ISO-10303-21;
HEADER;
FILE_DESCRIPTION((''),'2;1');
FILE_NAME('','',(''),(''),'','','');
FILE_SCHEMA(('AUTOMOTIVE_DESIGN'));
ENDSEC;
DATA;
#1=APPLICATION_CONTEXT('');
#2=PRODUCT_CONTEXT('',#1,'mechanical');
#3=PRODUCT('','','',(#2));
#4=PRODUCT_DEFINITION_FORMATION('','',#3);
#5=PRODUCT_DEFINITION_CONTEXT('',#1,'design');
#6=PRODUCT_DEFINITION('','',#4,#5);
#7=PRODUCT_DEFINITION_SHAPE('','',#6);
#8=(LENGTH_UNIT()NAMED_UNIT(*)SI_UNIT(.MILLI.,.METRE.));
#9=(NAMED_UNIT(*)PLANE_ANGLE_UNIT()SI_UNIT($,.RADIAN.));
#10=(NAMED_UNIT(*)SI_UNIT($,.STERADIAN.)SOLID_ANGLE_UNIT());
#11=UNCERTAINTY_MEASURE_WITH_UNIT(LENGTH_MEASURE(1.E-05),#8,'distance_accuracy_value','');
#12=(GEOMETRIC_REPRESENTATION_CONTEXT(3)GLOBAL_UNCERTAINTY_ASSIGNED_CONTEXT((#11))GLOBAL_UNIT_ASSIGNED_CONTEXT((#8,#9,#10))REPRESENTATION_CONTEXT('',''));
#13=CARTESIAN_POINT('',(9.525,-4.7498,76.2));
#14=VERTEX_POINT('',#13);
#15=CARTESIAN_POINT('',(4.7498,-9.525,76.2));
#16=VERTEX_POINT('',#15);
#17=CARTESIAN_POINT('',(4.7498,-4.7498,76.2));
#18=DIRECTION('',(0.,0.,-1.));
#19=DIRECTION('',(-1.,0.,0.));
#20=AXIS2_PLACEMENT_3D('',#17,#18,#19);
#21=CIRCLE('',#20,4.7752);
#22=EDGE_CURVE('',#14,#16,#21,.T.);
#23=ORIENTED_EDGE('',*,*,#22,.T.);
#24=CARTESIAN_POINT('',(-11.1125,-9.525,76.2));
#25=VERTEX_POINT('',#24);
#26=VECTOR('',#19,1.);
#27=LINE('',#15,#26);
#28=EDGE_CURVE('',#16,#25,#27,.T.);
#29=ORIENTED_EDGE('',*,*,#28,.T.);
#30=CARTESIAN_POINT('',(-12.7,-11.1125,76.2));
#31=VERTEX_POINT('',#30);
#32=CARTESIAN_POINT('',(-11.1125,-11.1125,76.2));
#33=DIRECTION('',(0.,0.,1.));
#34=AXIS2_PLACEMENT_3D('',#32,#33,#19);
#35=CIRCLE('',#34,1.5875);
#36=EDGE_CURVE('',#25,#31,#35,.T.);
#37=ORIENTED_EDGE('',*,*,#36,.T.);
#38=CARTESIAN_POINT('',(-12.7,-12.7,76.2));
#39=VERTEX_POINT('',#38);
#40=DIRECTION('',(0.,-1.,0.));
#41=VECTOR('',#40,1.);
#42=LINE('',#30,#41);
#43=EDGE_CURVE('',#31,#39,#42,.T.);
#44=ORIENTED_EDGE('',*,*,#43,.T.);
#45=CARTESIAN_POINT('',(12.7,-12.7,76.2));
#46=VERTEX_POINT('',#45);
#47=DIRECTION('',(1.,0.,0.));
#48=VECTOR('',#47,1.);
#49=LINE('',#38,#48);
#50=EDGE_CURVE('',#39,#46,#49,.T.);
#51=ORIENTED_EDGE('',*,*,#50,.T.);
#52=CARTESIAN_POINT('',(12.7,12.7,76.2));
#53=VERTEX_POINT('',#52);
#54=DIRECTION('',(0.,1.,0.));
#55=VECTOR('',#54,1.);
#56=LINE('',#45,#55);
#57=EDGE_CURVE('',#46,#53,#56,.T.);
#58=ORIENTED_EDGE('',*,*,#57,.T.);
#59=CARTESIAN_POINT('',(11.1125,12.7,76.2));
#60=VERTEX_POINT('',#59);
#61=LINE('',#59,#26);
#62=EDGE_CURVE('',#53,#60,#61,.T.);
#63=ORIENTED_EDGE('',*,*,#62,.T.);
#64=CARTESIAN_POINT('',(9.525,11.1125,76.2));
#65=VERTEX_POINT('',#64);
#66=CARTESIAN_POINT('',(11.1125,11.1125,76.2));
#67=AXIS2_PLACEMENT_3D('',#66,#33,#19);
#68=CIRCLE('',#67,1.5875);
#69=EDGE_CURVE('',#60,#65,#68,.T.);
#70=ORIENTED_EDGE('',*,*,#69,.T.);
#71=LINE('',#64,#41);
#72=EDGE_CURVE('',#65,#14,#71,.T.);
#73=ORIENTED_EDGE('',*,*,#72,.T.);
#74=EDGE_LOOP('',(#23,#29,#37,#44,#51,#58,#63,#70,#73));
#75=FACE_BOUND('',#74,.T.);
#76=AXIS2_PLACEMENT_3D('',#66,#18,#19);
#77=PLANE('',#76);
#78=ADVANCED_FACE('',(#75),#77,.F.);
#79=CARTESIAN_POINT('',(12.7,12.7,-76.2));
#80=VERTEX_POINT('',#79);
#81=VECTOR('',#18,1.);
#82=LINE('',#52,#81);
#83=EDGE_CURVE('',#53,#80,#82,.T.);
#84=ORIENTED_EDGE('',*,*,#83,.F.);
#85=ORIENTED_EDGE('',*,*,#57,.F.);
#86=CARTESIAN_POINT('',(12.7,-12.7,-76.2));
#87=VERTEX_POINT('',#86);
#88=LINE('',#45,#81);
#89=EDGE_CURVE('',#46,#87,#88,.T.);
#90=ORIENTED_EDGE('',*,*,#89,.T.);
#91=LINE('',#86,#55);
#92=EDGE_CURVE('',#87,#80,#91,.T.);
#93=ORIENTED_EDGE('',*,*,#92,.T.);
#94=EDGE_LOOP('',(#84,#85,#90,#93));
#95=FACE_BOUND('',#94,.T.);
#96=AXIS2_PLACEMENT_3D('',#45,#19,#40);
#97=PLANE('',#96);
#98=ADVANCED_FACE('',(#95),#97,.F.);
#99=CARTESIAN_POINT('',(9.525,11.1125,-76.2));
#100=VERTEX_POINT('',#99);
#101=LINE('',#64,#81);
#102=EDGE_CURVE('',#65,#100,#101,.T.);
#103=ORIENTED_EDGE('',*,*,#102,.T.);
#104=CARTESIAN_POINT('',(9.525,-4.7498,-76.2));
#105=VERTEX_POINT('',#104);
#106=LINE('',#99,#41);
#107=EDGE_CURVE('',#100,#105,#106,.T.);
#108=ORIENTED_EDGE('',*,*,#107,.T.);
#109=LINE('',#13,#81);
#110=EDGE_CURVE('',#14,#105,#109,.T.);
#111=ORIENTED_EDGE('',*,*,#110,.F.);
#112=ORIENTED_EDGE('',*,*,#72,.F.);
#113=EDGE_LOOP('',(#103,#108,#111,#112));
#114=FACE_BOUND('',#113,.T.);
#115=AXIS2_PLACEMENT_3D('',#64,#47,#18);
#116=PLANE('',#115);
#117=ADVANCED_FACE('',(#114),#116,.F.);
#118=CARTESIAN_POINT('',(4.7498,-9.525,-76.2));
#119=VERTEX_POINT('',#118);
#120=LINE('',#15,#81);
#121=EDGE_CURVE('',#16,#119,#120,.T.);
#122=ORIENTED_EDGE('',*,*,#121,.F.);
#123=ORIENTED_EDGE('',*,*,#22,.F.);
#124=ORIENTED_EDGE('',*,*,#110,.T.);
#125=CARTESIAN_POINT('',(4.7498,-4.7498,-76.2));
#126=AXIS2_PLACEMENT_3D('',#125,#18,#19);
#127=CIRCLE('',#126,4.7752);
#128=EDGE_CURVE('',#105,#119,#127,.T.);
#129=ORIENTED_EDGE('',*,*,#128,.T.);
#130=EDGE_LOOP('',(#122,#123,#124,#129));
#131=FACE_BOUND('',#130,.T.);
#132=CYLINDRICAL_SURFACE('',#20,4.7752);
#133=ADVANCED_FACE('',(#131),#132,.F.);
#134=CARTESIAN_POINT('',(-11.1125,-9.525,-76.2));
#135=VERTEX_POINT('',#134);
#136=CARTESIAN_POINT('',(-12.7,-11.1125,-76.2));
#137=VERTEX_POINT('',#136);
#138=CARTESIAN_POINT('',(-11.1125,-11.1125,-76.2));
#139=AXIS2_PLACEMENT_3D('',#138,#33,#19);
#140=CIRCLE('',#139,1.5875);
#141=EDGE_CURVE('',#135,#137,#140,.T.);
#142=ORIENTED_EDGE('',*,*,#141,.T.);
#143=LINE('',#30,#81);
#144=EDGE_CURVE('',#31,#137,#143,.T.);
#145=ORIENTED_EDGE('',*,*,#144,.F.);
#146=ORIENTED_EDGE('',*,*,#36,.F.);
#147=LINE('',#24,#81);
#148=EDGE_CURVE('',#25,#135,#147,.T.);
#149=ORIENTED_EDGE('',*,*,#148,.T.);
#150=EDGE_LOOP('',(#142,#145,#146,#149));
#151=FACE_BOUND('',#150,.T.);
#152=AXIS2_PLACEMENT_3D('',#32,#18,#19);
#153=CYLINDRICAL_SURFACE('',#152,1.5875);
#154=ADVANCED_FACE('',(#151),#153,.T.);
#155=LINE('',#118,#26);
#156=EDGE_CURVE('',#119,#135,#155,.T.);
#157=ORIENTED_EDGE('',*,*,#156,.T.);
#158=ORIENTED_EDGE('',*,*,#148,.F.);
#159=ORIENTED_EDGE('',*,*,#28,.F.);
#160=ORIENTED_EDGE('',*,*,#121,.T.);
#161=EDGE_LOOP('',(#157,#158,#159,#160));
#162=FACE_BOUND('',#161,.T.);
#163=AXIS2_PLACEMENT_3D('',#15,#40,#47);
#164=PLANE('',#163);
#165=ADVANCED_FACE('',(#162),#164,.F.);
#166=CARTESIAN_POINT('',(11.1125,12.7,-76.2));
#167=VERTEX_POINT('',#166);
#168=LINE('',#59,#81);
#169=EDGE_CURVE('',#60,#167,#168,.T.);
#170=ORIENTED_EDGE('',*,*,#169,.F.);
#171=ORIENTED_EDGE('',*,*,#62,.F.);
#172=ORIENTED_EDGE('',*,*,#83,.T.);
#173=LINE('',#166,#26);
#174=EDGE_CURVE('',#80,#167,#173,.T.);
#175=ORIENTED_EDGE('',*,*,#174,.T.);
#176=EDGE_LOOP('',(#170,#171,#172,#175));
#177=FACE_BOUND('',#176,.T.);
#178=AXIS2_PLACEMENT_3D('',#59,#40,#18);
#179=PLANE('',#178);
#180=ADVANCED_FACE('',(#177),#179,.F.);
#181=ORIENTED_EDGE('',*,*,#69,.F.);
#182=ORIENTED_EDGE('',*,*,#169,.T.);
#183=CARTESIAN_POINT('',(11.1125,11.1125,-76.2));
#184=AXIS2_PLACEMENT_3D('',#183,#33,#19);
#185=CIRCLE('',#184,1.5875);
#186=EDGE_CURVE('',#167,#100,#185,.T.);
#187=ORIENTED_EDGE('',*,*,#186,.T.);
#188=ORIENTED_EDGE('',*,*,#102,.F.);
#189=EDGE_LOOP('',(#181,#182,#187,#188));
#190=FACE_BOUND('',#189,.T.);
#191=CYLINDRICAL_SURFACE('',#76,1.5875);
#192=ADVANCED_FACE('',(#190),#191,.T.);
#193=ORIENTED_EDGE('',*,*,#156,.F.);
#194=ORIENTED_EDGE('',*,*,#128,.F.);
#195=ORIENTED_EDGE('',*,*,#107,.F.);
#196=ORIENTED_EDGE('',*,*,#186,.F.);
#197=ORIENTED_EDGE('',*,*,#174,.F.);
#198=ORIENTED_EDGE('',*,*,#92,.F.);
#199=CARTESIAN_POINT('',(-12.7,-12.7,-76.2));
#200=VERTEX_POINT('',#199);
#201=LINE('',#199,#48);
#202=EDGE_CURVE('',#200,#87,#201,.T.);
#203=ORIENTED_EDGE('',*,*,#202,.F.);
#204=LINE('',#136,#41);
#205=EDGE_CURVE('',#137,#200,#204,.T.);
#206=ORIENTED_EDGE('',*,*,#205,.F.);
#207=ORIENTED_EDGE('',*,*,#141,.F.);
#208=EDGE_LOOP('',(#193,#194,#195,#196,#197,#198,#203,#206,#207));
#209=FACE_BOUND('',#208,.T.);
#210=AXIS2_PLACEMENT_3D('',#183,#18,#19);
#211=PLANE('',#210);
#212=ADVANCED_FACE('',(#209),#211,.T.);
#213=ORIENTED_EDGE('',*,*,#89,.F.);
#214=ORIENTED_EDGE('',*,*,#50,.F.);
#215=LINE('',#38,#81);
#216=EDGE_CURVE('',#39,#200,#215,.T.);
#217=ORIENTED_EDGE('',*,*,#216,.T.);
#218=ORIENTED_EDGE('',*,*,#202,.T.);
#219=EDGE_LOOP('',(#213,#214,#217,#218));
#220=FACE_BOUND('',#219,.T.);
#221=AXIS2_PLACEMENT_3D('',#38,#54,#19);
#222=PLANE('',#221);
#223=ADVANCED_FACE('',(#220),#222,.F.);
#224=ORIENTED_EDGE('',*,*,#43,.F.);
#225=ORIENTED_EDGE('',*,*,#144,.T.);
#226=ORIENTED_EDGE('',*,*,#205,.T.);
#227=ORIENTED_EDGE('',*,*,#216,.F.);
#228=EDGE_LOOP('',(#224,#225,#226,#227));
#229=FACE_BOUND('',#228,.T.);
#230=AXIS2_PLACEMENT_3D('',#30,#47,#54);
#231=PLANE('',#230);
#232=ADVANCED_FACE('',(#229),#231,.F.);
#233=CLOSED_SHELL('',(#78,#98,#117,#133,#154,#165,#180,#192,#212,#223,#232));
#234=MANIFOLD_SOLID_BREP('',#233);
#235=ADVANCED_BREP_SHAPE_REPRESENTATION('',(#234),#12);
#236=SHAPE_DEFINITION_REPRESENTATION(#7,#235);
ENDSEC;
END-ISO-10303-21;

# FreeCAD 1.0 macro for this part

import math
import FreeCAD as App
import Part
import Sketcher

V = App.Vector
Q = App.Units.Quantity

doc = App.newDocument("Part")
body = doc.addObject("PartDesign::Body", "Body")

# Sketch on XY plane
sketch1 = body.newObject("Sketcher::SketchObject", "Sketch")
sketch1.AttachmentSupport = (doc.getObject("XY_Plane"), [""])
sketch1.MapMode = "FlatFace"
sketch1.addGeometry([
    Part.LineSegment(V(-12.7, -12.7, 0), V(12.7, -12.7, 0)),  # 0
    Part.LineSegment(V(12.7, -12.7, 0), V(12.7, 12.7, 0)),  # 1
    Part.LineSegment(V(12.7, 12.7, 0), V(11.1, 12.7, 0)),  # 2
    Part.ArcOfCircle(Part.Circle(V(11.1, 11.1, 0), V(0, 0, 1), 1.6), math.radians(90), math.radians(180)),  # 3
    Part.LineSegment(V(9.5, 11.1, 0), V(9.5, -4.7, 0)),  # 4
    Part.ArcOfCircle(Part.Circle(V(4.7, -4.7, 0), V(0, 0, 1), 4.8), math.radians(-90), math.radians(0)),  # 5
    Part.LineSegment(V(4.7, -9.5, 0), V(-11.1, -9.5, 0)),  # 6
    Part.ArcOfCircle(Part.Circle(V(-11.1, -11.1, 0), V(0, 0, 1), 1.6), math.radians(90), math.radians(180)),  # 7
    Part.LineSegment(V(-12.7, -11.1, 0), V(-12.7, -12.7, 0)),  # 8
], False)
sketch1.addConstraint([
    Sketcher.Constraint("Coincident", 0, 2, 1, 1),
    Sketcher.Constraint("Coincident", 1, 2, 2, 1),
    Sketcher.Constraint("Tangent", 2, 2, 3, 1),
    Sketcher.Constraint("Tangent", 3, 2, 4, 1),
    Sketcher.Constraint("Tangent", 4, 2, 5, 2),
    Sketcher.Constraint("Tangent", 5, 1, 6, 1),
    Sketcher.Constraint("Tangent", 6, 2, 7, 1),
    Sketcher.Constraint("Tangent", 7, 2, 8, 1),
    Sketcher.Constraint("Coincident", 8, 2, 0, 1),
    Sketcher.Constraint("Horizontal", 0),
    Sketcher.Constraint("Vertical", 1),
    Sketcher.Constraint("Horizontal", 2),
    Sketcher.Constraint("Vertical", 4),
    Sketcher.Constraint("Horizontal", 6),
    Sketcher.Constraint("Vertical", 8),
    Sketcher.Constraint("Equal", 3, 7),
    Sketcher.Constraint("Symmetric", 3, 3, 7, 3, -1, 1),
    Sketcher.Constraint("Symmetric", 1, 2, 8, 2, -1, 1),
    Sketcher.Constraint("Equal", 0, 1),
    Sketcher.Constraint("DistanceX", 0, 1, 0, 2, Q("1 in")),
    Sketcher.Constraint("Radius", 3, Q("0.0625 in")),
    Sketcher.Constraint("Radius", 5, Q("0.188 in")),
])
pad1 = body.newObject("PartDesign::Pad", "Pad")
pad1.Profile = sketch1
pad1.Length = Q("6 in")
pad1.Midplane = True

doc.recompute()
